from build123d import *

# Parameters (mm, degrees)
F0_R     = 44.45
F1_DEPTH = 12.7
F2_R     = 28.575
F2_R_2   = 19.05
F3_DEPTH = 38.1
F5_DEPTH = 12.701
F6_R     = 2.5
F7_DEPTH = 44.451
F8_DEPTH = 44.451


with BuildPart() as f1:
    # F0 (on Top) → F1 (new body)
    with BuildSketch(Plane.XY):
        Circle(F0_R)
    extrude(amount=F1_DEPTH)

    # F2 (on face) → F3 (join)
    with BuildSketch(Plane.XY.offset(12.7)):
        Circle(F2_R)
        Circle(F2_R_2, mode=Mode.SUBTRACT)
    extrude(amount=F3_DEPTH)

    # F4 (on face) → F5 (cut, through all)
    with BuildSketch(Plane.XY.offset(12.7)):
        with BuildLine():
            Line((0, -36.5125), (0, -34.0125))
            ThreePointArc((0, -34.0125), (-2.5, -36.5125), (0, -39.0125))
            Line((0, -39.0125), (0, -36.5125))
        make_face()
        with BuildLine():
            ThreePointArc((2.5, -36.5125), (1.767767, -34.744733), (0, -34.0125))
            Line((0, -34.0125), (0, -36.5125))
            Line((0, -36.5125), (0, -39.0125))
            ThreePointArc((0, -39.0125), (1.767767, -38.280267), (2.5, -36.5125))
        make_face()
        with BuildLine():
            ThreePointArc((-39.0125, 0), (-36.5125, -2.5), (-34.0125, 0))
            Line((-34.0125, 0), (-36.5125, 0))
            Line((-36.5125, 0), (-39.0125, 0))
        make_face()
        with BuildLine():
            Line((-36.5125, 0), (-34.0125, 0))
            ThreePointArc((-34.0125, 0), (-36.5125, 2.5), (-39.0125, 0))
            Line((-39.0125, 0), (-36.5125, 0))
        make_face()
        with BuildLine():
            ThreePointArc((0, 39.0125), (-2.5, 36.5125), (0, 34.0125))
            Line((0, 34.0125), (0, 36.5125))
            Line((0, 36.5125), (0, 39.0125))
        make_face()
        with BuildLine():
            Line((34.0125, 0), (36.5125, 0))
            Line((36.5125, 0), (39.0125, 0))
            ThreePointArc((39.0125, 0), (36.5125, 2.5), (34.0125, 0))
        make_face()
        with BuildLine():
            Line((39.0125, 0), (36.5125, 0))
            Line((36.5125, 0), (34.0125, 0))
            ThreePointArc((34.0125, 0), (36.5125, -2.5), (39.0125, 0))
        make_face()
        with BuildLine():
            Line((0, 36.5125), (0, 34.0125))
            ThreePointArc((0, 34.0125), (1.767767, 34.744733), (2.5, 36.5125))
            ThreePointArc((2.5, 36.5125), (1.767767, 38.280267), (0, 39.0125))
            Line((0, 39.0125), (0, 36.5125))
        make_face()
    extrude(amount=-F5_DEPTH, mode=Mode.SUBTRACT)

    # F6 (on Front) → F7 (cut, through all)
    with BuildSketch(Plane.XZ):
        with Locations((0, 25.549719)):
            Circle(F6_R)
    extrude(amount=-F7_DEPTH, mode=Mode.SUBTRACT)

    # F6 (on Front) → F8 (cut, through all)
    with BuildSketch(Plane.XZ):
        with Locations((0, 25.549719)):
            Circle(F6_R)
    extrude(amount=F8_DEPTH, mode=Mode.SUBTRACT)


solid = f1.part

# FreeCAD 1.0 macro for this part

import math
import FreeCAD as App
import Part
import Sketcher
Q = App.Units.Quantity

doc = App.newDocument("Part")
body = doc.addObject("PartDesign::Body", "Body")

# Sketch on XY plane
sketch1 = body.newObject("Sketcher::SketchObject", "Sketch")
sketch1.AttachmentSupport = (doc.getObject("XY_Plane"), [""])
sketch1.MapMode = "FlatFace"
sketch1.addGeometry(Part.Circle(App.Vector(0, 0, 0), App.Vector(0, 0, 1), 44), False)
sketch1.addConstraint([
    Sketcher.Constraint("Coincident", 0, 3, -1, 1),
    Sketcher.Constraint("Diameter", 0, Q("3.5 in")),
])
pad1 = body.newObject("PartDesign::Pad", "Pad")
pad1.Profile = sketch1
pad1.Length = Q("0.5 in")

# Sketch on XY plane
sketch2 = body.newObject("Sketcher::SketchObject", "Sketch001")
sketch2.AttachmentSupport = (doc.getObject("XY_Plane"), [""])
sketch2.MapMode = "FlatFace"
sketch2.AttachmentOffset = App.Placement(App.Vector(0, 0, 0.5 * 25.4), App.Rotation())
sketch2.addGeometry([
    Part.Circle(App.Vector(0, 0, 0), App.Vector(0, 0, 1), 29),
    Part.Circle(App.Vector(0, 0, 0), App.Vector(0, 0, 1), 19),
], False)
sketch2.addConstraint([
    Sketcher.Constraint("Coincident", 0, 3, -1, 1),
    Sketcher.Constraint("Coincident", 1, 3, -1, 1),
    Sketcher.Constraint("Diameter", 1, Q("1.5 in")),
    Sketcher.Constraint("Diameter", 0, Q("2.25 in")),
])
pad2 = body.newObject("PartDesign::Pad", "Pad001")
pad2.Profile = sketch2
pad2.Length = Q("1.5 in")

# Sketch on XY plane
sketch3 = body.newObject("Sketcher::SketchObject", "Sketch002")
sketch3.AttachmentSupport = (doc.getObject("XY_Plane"), [""])
sketch3.MapMode = "FlatFace"
sketch3.AttachmentOffset = App.Placement(App.Vector(0, 0, 0.5 * 25.4), App.Rotation())
sketch3.addGeometry([
    Part.ArcOfCircle(Part.Circle(App.Vector(0, -36.5, 0), App.Vector(0, 0, 1), 2.5), math.radians(90), math.radians(270)),  # 0
    Part.ArcOfCircle(Part.Circle(App.Vector(0, -36.5, 0), App.Vector(0, 0, 1), 2.5), math.radians(-90), math.radians(0)),  # 1
    Part.ArcOfCircle(Part.Circle(App.Vector(0, -36.5, 0), App.Vector(0, 0, 1), 2.5), math.radians(0), math.radians(90)),  # 2
    Part.Circle(App.Vector(-36.5, 0, 0), App.Vector(0, 0, 1), 2.5),  # 3
    Part.ArcOfCircle(Part.Circle(App.Vector(0, 36.5, 0), App.Vector(0, 0, 1), 2.5), math.radians(90), math.radians(270)),  # 4
    Part.ArcOfCircle(Part.Circle(App.Vector(0, 36.5, 0), App.Vector(0, 0, 1), 2.5), math.radians(-90), math.radians(0)),  # 5
    Part.ArcOfCircle(Part.Circle(App.Vector(0, 36.5, 0), App.Vector(0, 0, 1), 2.5), math.radians(0), math.radians(90)),  # 6
    Part.Circle(App.Vector(36.5, 0, 0), App.Vector(0, 0, 1), 2.5),  # 7
], False)
sketch3.addConstraint([
    Sketcher.Constraint("Tangent", 0, 2, 1, 1),
    Sketcher.Constraint("Tangent", 1, 2, 2, 1),
    Sketcher.Constraint("Tangent", 2, 2, 0, 1),
    Sketcher.Constraint("Tangent", 4, 2, 5, 1),
    Sketcher.Constraint("Tangent", 5, 2, 6, 1),
    Sketcher.Constraint("Tangent", 6, 2, 4, 1),
    Sketcher.Constraint("Equal", 2, 3),
    Sketcher.Constraint("Equal", 3, 4),
    Sketcher.Constraint("Equal", 6, 7),
    Sketcher.Constraint("Symmetric", 0, 3, 4, 3, -1, 1),
    Sketcher.Constraint("Symmetric", 3, 3, 7, 3, -1, 1),
    Sketcher.Constraint("Symmetric", 1, 2, 5, 2, -1),
    Sketcher.Constraint("PointOnObject", 3, 3, -1),
    Sketcher.Constraint("PointOnObject", 0, 2, -2),
    Sketcher.Constraint("PointOnObject", 2, 2, -2),
    Sketcher.Constraint("PointOnObject", 4, 2, -2),
    Sketcher.Constraint("PointOnObject", 6, 2, -2),
    Sketcher.Constraint("Horizontal", 2, 3, 1, 2),
    Sketcher.Constraint("Diameter", 3, Q("5 mm")),
    Sketcher.Constraint("DistanceY", 0, 3, -1, 1, Q("1.4375 in")),
    Sketcher.Constraint("DistanceX", 3, 3, -1, 1, Q("1.4375 in")),
])
pocket1 = body.newObject("PartDesign::Pocket", "Pocket")
pocket1.Profile = sketch3
pocket1.Type = "ThroughAll"

# Sketch on XZ plane
sketch4 = body.newObject("Sketcher::SketchObject", "Sketch003")
sketch4.AttachmentSupport = (doc.getObject("XZ_Plane"), [""])
sketch4.MapMode = "FlatFace"
sketch4.addGeometry(Part.Circle(App.Vector(0, 25.5, 0), App.Vector(0, 0, 1), 2.5), False)
sketch4.addConstraint([
    Sketcher.Constraint("PointOnObject", 0, 3, -2),
    Sketcher.Constraint("Diameter", 0, Q("5 mm")),
    Sketcher.Constraint("DistanceY", -1, 1, 0, 3, Q("25.549719 mm")),
])
pocket2 = body.newObject("PartDesign::Pocket", "Pocket001")
pocket2.Profile = sketch4
pocket2.Type = "ThroughAll"

# Sketch on XZ plane
sketch5 = body.newObject("Sketcher::SketchObject", "Sketch004")
sketch5.AttachmentSupport = (doc.getObject("XZ_Plane"), [""])
sketch5.MapMode = "FlatFace"
sketch5.addGeometry(Part.Circle(App.Vector(0, 25.5, 0), App.Vector(0, 0, 1), 2.5), False)
sketch5.addConstraint([
    Sketcher.Constraint("PointOnObject", 0, 3, -2),
    Sketcher.Constraint("Diameter", 0, Q("5 mm")),
    Sketcher.Constraint("DistanceY", -1, 1, 0, 3, Q("25.549719 mm")),
])
pocket3 = body.newObject("PartDesign::Pocket", "Pocket002")
pocket3.Profile = sketch5
pocket3.Type = "ThroughAll"
pocket3.Reversed = True

doc.recompute()
